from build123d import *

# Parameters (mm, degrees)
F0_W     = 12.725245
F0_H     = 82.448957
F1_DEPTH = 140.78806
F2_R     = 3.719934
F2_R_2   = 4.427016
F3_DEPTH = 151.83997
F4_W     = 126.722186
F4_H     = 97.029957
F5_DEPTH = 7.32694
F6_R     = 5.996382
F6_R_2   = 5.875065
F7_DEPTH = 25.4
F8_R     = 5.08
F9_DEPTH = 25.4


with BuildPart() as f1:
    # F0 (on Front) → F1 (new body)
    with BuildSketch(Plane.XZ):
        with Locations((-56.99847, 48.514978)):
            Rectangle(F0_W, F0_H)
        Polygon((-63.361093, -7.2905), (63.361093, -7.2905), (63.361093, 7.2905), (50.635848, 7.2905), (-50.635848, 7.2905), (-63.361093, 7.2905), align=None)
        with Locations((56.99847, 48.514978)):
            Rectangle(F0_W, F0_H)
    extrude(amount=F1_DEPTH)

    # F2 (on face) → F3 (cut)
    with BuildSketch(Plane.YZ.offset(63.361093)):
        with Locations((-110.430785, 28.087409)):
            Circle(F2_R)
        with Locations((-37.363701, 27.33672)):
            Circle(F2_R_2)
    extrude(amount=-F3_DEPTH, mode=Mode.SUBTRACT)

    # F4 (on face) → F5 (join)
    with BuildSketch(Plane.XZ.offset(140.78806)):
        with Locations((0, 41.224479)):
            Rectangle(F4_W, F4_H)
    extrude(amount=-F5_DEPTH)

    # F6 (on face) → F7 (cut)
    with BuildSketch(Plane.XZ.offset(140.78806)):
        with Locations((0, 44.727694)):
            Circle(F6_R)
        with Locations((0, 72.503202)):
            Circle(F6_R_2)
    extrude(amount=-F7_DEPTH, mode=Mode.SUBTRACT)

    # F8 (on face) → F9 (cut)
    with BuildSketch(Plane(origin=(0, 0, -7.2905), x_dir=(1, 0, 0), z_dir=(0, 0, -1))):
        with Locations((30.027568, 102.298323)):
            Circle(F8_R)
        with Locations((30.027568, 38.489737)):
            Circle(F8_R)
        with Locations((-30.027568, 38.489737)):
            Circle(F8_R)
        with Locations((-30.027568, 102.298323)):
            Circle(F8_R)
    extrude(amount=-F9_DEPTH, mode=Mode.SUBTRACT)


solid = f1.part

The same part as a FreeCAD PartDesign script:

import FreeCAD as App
import Part
import Sketcher

V = App.Vector
Q = App.Units.Quantity

doc = App.newDocument("Part")
body = doc.addObject("PartDesign::Body", "Body")

sketch1 = doc.addObject("Sketcher::SketchObject", "Sketch")
body.addObject(sketch1)
sketch1.AttachmentSupport = (doc.XZ_Plane, [""])
sketch1.MapMode = "FlatFace"
sketch1.addGeometry([
    Part.LineSegment(V(-63.361093, 7.2905, 0), V(-63.361092, 7.2905, 0)),
    Part.LineSegment(V(-63.361093, 7.2905, 0), V(-63.361093, -7.2905, 0)),
    Part.LineSegment(V(-63.361093, -7.2905, 0), V(63.361093, -7.2905, 0)),
    Part.LineSegment(V(63.361093, -7.2905, 0), V(63.361093, 7.2905, 0)),
    Part.LineSegment(V(63.361092, 7.2905, 0), V(63.361093, 7.2905, 0)),
    Part.LineSegment(V(63.361092, 7.2905, 0), V(63.361092, 89.739457, 0)),
    Part.LineSegment(V(63.361092, 89.739457, 0), V(50.635847, 89.739457, 0)),
    Part.LineSegment(V(50.635847, 89.739457, 0), V(50.635847, 7.2905, 0)),
    Part.LineSegment(V(50.635847, 7.2905, 0), V(-50.635847, 7.2905, 0)),
    Part.LineSegment(V(-50.635847, 7.2905, 0), V(-50.635847, 89.739457, 0)),
    Part.LineSegment(V(-50.635847, 89.739457, 0), V(-63.361092, 89.739457, 0)),
    Part.LineSegment(V(-63.361092, 89.739457, 0), V(-63.361092, 7.2905, 0)),
], False)
sketch1.addConstraint([
    Sketcher.Constraint("Coincident", 0, 1, 1, 1),
    Sketcher.Constraint("Coincident", 1, 2, 2, 1),
    Sketcher.Constraint("Coincident", 2, 2, 3, 1),
    Sketcher.Constraint("Coincident", 3, 2, 4, 1),
    Sketcher.Constraint("Coincident", 4, 2, 5, 1),
    Sketcher.Constraint("Coincident", 5, 2, 6, 1),
    Sketcher.Constraint("Coincident", 6, 2, 7, 1),
    Sketcher.Constraint("Coincident", 7, 2, 8, 1),
    Sketcher.Constraint("Coincident", 8, 2, 9, 1),
    Sketcher.Constraint("Coincident", 9, 2, 10, 1),
    Sketcher.Constraint("Coincident", 10, 2, 11, 1),
    Sketcher.Constraint("Coincident", 11, 2, 0, 2),
    Sketcher.Constraint("Horizontal", 0),
    Sketcher.Constraint("Vertical", 1),
    Sketcher.Constraint("Horizontal", 2),
    Sketcher.Constraint("Vertical", 3),
    Sketcher.Constraint("Horizontal", 4),
    Sketcher.Constraint("Vertical", 5),
    Sketcher.Constraint("Horizontal", 6),
    Sketcher.Constraint("Vertical", 7),
    Sketcher.Constraint("Horizontal", 8),
    Sketcher.Constraint("Vertical", 9),
    Sketcher.Constraint("Horizontal", 10),
    Sketcher.Constraint("Vertical", 11),
    Sketcher.Constraint("DistanceY", 1, 2, 1, 1, 14.581),
    Sketcher.Constraint("DistanceY", 3, 1, 3, 2, 14.581),
    Sketcher.Constraint("DistanceY", -1, 1, 0, 1, 7.2905),
    Sketcher.Constraint("DistanceY", -1, 1, 7, 2, 7.2905),
    Sketcher.Constraint("DistanceX", 2, 1, 2, 2, 126.722186),
    Sketcher.Constraint("DistanceX", 6, 2, 6, 1, 12.725245),
    Sketcher.Constraint("DistanceX", 8, 2, 8, 1, 101.271695),
    Sketcher.Constraint("DistanceX", 10, 2, 10, 1, 12.725245),
    Sketcher.Constraint("DistanceY", 5, 1, 5, 2, 82.448957),
    Sketcher.Constraint("DistanceY", 9, 1, 9, 2, 82.448957),
    Sketcher.Constraint("DistanceX", 0, 1, 6, 2, 113.99694),
    Sketcher.Constraint("DistanceX", 0, 1, -1, 1, 63.361093),
])
pad1 = doc.addObject("PartDesign::Pad", "Pad")
body.addObject(pad1)
pad1.Profile = sketch1
pad1.Length = 140.78806

sketch2 = doc.addObject("Sketcher::SketchObject", "Sketch001")
body.addObject(sketch2)
sketch2.AttachmentSupport = (doc.YZ_Plane, [""])
sketch2.MapMode = "FlatFace"
sketch2.AttachmentOffset = App.Placement(V(0, 0, 63.361093), App.Rotation())
sketch2.addGeometry([
    Part.Circle(V(-110.4, 28.1, 0), V(0, 0, 1), 3.7),
    Part.Circle(V(-37.4, 27.3, 0), V(0, 0, 1), 4.4),
], False)
sketch2.addConstraint([
    Sketcher.Constraint("Diameter", 0, 7.439868),
    Sketcher.Constraint("Diameter", 1, 8.854032),
    Sketcher.Constraint("DistanceX", 1, 3, -1, 1, 37.363701),
    Sketcher.Constraint("DistanceY", -1, 1, 0, 3, 28.087409),
    Sketcher.Constraint("DistanceY", -1, 1, 1, 3, 27.33672),
    Sketcher.Constraint("DistanceX", 0, 3, -1, 1, 110.430785),
])
pocket1 = doc.addObject("PartDesign::Pocket", "Pocket")
body.addObject(pocket1)
pocket1.Profile = sketch2
pocket1.Length = 151.83997

sketch3 = doc.addObject("Sketcher::SketchObject", "Sketch002")
body.addObject(sketch3)
sketch3.AttachmentSupport = (doc.XZ_Plane, [""])
sketch3.MapMode = "FlatFace"
sketch3.AttachmentOffset = App.Placement(V(0, 0, 140.78806), App.Rotation())
sketch3.addGeometry([
    Part.LineSegment(V(-63, 90, 0), V(-63, -7, 0)),
    Part.LineSegment(V(-63, -7, 0), V(63, -7, 0)),
    Part.LineSegment(V(63, -7, 0), V(63, 90, 0)),
    Part.LineSegment(V(63, 90, 0), V(-63, 90, 0)),
], False)
sketch3.addConstraint([
    Sketcher.Constraint("Coincident", 0, 2, 1, 1),
    Sketcher.Constraint("Coincident", 1, 2, 2, 1),
    Sketcher.Constraint("Coincident", 2, 2, 3, 1),
    Sketcher.Constraint("Coincident", 3, 2, 0, 1),
    Sketcher.Constraint("Vertical", 0),
    Sketcher.Constraint("Horizontal", 1),
    Sketcher.Constraint("Vertical", 2),
    Sketcher.Constraint("Horizontal", 3),
    Sketcher.Constraint("DistanceY", 0, 2, -1, 1, 7.2905),
    Sketcher.Constraint("DistanceX", 1, 1, 1, 2, 126.722186),
    Sketcher.Constraint("DistanceY", 0, 2, 0, 1, 97.029957),
    Sketcher.Constraint("DistanceX", 0, 2, -1, 1, 63.361093),
])
pad2 = doc.addObject("PartDesign::Pad", "Pad001")
body.addObject(pad2)
pad2.Profile = sketch3
pad2.Length = 7.32694
pad2.Reversed = True

sketch4 = doc.addObject("Sketcher::SketchObject", "Sketch003")
body.addObject(sketch4)
sketch4.AttachmentSupport = (doc.XZ_Plane, [""])
sketch4.MapMode = "FlatFace"
sketch4.AttachmentOffset = App.Placement(V(0, 0, 140.78806), App.Rotation())
sketch4.addGeometry([
    Part.Circle(V(0, 45, 0), V(0, 0, 1), 6),
    Part.Circle(V(0, 73, 0), V(0, 0, 1), 6),
], False)
sketch4.addConstraint([
    Sketcher.Constraint("PointOnObject", 0, 3, -2),
    Sketcher.Constraint("PointOnObject", 1, 3, -2),
    Sketcher.Constraint("Diameter", 1, 11.75013),
    Sketcher.Constraint("Diameter", 0, 11.992764),
    Sketcher.Constraint("DistanceY", -1, 1, 1, 3, 72.503202),
    Sketcher.Constraint("DistanceY", 0, 3, 1, 3, 27.775508),
])
pocket2 = doc.addObject("PartDesign::Pocket", "Pocket001")
body.addObject(pocket2)
pocket2.Profile = sketch4
pocket2.Length = Q("1 in")

sketch5 = doc.addObject("Sketcher::SketchObject", "Sketch004")
body.addObject(sketch5)
sketch5.AttachmentSupport = (doc.XY_Plane, [""])
sketch5.MapMode = "FlatFace"
sketch5.AttachmentOffset = App.Placement(V(0, 0, -7.2905), App.Rotation())
sketch5.addGeometry([
    Part.Circle(V(30, -102, 0), V(0, 0, 1), 5),
    Part.Circle(V(30, -38, 0), V(0, 0, 1), 5),
    Part.Circle(V(-30, -38, 0), V(0, 0, 1), 5),
    Part.Circle(V(-30, -102, 0), V(0, 0, 1), 5),
], False)
sketch5.addConstraint([
    Sketcher.Constraint("Equal", 0, 1),
    Sketcher.Constraint("Equal", 1, 2),
    Sketcher.Constraint("Equal", 2, 3),
    Sketcher.Constraint("Symmetric", 1, 3, 2, 3, -2),
    Sketcher.Constraint("Symmetric", 0, 3, 3, 3, -2),
    Sketcher.Constraint("Vertical", 0, 3, 1, 3),
    Sketcher.Constraint("Diameter", 0, Q("0.4 in")),
    Sketcher.Constraint("DistanceX", -1, 1, 0, 3, 30.027568),
    Sketcher.Constraint("DistanceY", 0, 3, -1, 1, 102.298323),
    Sketcher.Constraint("DistanceY", 1, 3, -1, 1, 38.489737),
])
pocket3 = doc.addObject("PartDesign::Pocket", "Pocket002")
body.addObject(pocket3)
pocket3.Profile = sketch5
pocket3.Length = Q("1 in")
pocket3.Reversed = True

doc.recompute()
